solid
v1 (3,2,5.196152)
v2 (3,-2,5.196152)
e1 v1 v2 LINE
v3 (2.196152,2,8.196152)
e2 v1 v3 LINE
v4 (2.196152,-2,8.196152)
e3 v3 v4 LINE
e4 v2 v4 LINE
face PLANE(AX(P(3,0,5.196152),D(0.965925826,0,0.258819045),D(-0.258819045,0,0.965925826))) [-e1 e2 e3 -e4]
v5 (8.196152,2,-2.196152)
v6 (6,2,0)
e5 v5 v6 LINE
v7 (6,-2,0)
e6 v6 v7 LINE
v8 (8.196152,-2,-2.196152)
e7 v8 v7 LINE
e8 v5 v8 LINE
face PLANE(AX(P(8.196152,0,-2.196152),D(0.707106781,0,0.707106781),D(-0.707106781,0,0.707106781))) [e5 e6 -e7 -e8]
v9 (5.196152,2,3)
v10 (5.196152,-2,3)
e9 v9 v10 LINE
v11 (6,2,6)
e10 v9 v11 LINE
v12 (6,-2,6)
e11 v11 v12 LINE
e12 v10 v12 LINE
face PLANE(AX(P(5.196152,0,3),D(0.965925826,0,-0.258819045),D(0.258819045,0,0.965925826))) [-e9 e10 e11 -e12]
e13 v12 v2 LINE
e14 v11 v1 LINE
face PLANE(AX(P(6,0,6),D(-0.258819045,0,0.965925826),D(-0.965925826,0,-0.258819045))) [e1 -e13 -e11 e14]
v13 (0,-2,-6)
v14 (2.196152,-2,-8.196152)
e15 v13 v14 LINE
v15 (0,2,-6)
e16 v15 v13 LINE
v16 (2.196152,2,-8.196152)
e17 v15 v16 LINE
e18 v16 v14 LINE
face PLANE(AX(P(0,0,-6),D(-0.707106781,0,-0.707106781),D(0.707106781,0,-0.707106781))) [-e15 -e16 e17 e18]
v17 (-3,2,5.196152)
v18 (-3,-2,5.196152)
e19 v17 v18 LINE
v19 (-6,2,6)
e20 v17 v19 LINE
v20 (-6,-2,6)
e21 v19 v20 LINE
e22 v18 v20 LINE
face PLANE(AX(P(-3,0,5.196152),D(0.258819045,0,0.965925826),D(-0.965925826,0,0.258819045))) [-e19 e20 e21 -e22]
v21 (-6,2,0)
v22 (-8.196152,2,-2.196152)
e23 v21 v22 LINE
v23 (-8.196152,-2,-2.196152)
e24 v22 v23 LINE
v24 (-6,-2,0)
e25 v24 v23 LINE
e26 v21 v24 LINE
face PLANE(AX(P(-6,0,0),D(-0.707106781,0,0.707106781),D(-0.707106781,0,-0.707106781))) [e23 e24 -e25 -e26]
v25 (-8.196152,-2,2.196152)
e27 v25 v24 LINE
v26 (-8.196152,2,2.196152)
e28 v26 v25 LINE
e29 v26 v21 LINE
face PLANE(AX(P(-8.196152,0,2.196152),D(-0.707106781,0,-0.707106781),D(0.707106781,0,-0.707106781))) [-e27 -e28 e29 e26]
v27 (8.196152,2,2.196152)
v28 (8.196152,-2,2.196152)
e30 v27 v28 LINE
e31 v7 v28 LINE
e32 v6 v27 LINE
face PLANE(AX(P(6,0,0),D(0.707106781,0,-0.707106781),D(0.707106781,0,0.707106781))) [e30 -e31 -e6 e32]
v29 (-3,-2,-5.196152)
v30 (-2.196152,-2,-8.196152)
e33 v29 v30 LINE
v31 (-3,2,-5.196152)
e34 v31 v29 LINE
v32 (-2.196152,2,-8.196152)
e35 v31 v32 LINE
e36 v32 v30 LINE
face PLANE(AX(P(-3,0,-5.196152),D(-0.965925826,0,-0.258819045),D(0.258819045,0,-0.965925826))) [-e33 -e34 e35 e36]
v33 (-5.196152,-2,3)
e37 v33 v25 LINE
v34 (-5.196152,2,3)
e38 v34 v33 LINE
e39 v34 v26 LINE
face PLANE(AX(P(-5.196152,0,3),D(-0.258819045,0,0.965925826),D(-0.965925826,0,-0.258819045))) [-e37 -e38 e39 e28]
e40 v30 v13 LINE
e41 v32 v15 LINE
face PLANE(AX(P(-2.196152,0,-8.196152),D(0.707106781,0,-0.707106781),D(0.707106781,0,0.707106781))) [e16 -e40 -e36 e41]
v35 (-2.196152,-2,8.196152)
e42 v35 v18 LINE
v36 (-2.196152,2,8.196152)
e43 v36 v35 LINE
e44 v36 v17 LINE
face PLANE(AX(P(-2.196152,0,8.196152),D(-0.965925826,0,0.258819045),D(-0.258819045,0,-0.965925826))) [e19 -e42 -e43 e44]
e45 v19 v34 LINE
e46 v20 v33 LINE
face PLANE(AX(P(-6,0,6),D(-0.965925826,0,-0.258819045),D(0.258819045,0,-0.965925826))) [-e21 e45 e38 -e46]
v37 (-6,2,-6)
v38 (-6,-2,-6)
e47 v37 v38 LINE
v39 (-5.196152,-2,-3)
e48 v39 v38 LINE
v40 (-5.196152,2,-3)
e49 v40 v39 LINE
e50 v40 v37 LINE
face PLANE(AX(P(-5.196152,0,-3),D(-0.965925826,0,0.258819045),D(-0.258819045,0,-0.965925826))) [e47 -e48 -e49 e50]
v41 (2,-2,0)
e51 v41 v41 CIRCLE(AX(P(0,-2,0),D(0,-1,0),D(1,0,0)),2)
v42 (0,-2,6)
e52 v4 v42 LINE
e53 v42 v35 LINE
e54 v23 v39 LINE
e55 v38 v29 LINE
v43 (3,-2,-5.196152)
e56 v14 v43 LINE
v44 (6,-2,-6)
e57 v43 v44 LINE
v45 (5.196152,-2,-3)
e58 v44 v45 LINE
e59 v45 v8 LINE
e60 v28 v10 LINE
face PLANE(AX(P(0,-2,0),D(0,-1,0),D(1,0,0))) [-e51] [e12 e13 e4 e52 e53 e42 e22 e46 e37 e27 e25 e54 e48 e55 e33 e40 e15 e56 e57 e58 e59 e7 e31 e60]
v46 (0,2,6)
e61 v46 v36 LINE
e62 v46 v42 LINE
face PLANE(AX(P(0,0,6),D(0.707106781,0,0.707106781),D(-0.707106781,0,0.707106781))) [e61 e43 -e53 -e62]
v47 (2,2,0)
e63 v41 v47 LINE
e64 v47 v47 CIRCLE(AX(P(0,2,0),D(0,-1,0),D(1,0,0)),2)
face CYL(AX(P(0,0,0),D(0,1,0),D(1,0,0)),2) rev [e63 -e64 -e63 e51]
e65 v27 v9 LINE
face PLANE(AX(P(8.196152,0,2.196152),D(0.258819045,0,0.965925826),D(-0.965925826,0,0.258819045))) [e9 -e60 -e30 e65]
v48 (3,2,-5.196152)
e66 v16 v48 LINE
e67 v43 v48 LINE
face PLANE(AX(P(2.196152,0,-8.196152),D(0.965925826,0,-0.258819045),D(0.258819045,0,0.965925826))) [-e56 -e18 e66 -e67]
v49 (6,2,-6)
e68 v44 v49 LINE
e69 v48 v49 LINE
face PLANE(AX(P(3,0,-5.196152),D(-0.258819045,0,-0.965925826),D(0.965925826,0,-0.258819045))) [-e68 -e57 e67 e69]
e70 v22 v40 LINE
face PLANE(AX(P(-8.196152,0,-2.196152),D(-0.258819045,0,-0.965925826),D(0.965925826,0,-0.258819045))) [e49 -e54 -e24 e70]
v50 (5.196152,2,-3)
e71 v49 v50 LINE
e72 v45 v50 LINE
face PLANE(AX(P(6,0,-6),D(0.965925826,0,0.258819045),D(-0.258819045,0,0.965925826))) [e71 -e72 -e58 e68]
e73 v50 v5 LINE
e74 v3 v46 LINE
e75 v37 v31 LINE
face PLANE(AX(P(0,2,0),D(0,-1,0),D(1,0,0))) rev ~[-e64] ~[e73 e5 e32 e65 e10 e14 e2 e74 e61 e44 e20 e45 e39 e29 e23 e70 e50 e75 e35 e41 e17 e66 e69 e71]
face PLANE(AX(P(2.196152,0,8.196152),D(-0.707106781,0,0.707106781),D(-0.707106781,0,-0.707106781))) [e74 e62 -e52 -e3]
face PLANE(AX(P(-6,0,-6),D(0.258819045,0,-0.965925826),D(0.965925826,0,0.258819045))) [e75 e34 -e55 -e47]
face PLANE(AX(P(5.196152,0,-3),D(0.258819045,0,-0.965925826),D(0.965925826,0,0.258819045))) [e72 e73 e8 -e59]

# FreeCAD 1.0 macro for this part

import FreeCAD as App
import Part
import Sketcher
Q = App.Units.Quantity


def add_polygon(sketch, points):
    """Adds a closed chain of lines whose ends are joined by coincident constraints."""
    first, n = sketch.GeometryCount, len(points)
    for a, b in zip(points, points[1:] + points[:1]):
        sketch.addGeometry(Part.LineSegment(App.Vector(*a, 0), App.Vector(*b, 0)), False)
    for i in range(n):
        sketch.addConstraint(Sketcher.Constraint("Coincident", first + i, 2, first + (i + 1) % n, 1))

doc = App.newDocument("Part")
params = doc.addObject("Spreadsheet::Sheet", "Params")
for row, (alias, value) in enumerate([
    ("sketch1_diameter", "4 mm"),
    ("pad1_length", "4 mm"),
], start=1):
    params.set(f"A{row}", alias)
    params.set(f"B{row}", "=" + value)
    params.setAlias(f"B{row}", alias)

body = doc.addObject("PartDesign::Body", "Body")

# Sketch on XZ plane
sketch1 = body.newObject("Sketcher::SketchObject", "Sketch")
sketch1.AttachmentSupport = (doc.getObject("XZ_Plane"), [""])
sketch1.MapMode = "FlatFace"
add_polygon(sketch1, [(5.2, -3), (8.2, -2.2), (6, 0), (8.2, 2.2), (5.2, 3), (6, 6), (3, 5.2), (2.2, 8.2), (0, 6), (-2.2, 8.2), (-3, 5.2), (-6, 6), (-5.2, 3), (-8.2, 2.2), (-6, 0), (-8.2, -2.2), (-5.2, -3), (-6, -6), (-3, -5.2), (-2.2, -8.2), (0, -6), (2.2, -8.2), (3, -5.2), (6, -6)])  # lines 0-23
sketch1.addGeometry(Part.Circle(App.Vector(0, 0, 0), App.Vector(0, 0, 1), 2), False)  # 24
sketch1.addConstraint([
    Sketcher.Constraint("Coincident", 24, 3, -1, 1),
    Sketcher.Constraint("Symmetric", 0, 2, 12, 2, -1, 1),
    Sketcher.Constraint("Symmetric", 1, 2, 13, 2, -1, 1),
    Sketcher.Constraint("Symmetric", 2, 2, 14, 2, -1, 1),
    Sketcher.Constraint("Symmetric", 3, 2, 15, 2, -1, 1),
    Sketcher.Constraint("Symmetric", 4, 2, 16, 2, -1, 1),
    Sketcher.Constraint("Symmetric", 5, 2, 17, 2, -1, 1),
    Sketcher.Constraint("Symmetric", 6, 2, 18, 2, -1, 1),
    Sketcher.Constraint("Symmetric", 7, 2, 19, 2, -1, 1),
    Sketcher.Constraint("Symmetric", 8, 2, 20, 2, -1, 1),
    Sketcher.Constraint("Symmetric", 9, 2, 21, 2, -1, 1),
    Sketcher.Constraint("Symmetric", 10, 2, 22, 2, -1, 1),
    Sketcher.Constraint("Symmetric", 11, 2, 23, 2, -1, 1),
    Sketcher.Constraint("Symmetric", 6, 2, 8, 2, -2),
    Sketcher.Constraint("Symmetric", 5, 2, 9, 2, -2),
    Sketcher.Constraint("Symmetric", 4, 2, 10, 2, -2),
    Sketcher.Constraint("Symmetric", 3, 2, 11, 2, -2),
    Sketcher.Constraint("Symmetric", 2, 2, 12, 2, -2),
    Sketcher.Constraint("PointOnObject", 1, 2, -1),
    Sketcher.Constraint("PointOnObject", 7, 2, -2),
    Sketcher.Constraint("Perpendicular", 1, 2),
    Sketcher.Constraint("Perpendicular", 3, 4),
    Sketcher.Constraint("Parallel", 0, 5),
    Sketcher.Constraint("Perpendicular", 5, 6),
    Sketcher.Constraint("Parallel", 2, 7),
    Sketcher.Constraint("Horizontal", 4, 2, 7, 2),
    Sketcher.Constraint("Vertical", 1, 2, 4, 2),
    Sketcher.Constraint("Equal", 0, 1),
    Sketcher.Constraint("Equal", 3, 4),
    Sketcher.Constraint("Equal", 4, 5),
    Sketcher.Constraint("Equal", 5, 6),
    Sketcher.Constraint("Diameter", 24, Q("4 mm")),
    Sketcher.Constraint("DistanceX", -1, 1, 1, 2, Q("6 mm")),
])
sketch1.setExpression("Constraints[55]", "Params.sketch1_diameter")
pad1 = body.newObject("PartDesign::Pad", "Pad")
pad1.Profile = sketch1
pad1.setExpression("Length", "Params.pad1_length")
pad1.Midplane = True

doc.recompute()
